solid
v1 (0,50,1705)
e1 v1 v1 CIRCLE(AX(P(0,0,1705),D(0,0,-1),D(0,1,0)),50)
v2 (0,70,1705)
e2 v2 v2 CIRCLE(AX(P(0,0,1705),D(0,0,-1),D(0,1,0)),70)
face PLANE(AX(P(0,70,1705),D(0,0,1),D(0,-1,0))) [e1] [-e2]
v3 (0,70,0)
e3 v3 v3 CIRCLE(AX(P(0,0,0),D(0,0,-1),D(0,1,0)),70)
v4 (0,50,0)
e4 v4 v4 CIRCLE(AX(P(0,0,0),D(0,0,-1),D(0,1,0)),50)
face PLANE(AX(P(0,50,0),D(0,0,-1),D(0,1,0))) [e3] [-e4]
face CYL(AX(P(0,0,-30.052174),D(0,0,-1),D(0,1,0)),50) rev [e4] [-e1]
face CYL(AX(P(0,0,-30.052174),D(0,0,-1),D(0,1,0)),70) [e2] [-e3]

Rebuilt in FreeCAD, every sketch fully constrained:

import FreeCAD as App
import Part
import Sketcher

V = App.Vector
Q = App.Units.Quantity

doc = App.newDocument("Part")
body = doc.addObject("PartDesign::Body", "Body")

sketch1 = body.newObject("Sketcher::SketchObject", "Sketch")
sketch1.AttachmentSupport = (doc.getObject("YZ_Plane"), [""])
sketch1.MapMode = "FlatFace"
sketch1.addGeometry([
    Part.LineSegment(V(70, 1705, 0), V(50, 1705, 0)),
    Part.LineSegment(V(50, 1705, 0), V(50, 0, 0)),
    Part.LineSegment(V(50, 0, 0), V(70, 0, 0)),
    Part.LineSegment(V(70, 0, 0), V(70, 1705, 0)),
], False)
sketch1.addConstraint([
    Sketcher.Constraint("Coincident", 0, 2, 1, 1),
    Sketcher.Constraint("Coincident", 1, 2, 2, 1),
    Sketcher.Constraint("Coincident", 2, 2, 3, 1),
    Sketcher.Constraint("Coincident", 3, 2, 0, 1),
    Sketcher.Constraint("Horizontal", 0),
    Sketcher.Constraint("Vertical", 1),
    Sketcher.Constraint("Horizontal", 2),
    Sketcher.Constraint("Vertical", 3),
    Sketcher.Constraint("PointOnObject", 1, 2, -1),
    Sketcher.Constraint("DistanceX", 0, 2, 0, 1, Q("20 mm")),
    Sketcher.Constraint("DistanceY", 1, 2, 1, 1, Q("1705 mm")),
    Sketcher.Constraint("DistanceX", -1, 1, 0, 2, Q("50 mm")),
])
revolution = body.newObject("PartDesign::Revolution", "Revolution")
revolution.Profile = sketch1
revolution.ReferenceAxis = (sketch1, ["V_Axis"])
revolution.Angle = 360

doc.recompute()
